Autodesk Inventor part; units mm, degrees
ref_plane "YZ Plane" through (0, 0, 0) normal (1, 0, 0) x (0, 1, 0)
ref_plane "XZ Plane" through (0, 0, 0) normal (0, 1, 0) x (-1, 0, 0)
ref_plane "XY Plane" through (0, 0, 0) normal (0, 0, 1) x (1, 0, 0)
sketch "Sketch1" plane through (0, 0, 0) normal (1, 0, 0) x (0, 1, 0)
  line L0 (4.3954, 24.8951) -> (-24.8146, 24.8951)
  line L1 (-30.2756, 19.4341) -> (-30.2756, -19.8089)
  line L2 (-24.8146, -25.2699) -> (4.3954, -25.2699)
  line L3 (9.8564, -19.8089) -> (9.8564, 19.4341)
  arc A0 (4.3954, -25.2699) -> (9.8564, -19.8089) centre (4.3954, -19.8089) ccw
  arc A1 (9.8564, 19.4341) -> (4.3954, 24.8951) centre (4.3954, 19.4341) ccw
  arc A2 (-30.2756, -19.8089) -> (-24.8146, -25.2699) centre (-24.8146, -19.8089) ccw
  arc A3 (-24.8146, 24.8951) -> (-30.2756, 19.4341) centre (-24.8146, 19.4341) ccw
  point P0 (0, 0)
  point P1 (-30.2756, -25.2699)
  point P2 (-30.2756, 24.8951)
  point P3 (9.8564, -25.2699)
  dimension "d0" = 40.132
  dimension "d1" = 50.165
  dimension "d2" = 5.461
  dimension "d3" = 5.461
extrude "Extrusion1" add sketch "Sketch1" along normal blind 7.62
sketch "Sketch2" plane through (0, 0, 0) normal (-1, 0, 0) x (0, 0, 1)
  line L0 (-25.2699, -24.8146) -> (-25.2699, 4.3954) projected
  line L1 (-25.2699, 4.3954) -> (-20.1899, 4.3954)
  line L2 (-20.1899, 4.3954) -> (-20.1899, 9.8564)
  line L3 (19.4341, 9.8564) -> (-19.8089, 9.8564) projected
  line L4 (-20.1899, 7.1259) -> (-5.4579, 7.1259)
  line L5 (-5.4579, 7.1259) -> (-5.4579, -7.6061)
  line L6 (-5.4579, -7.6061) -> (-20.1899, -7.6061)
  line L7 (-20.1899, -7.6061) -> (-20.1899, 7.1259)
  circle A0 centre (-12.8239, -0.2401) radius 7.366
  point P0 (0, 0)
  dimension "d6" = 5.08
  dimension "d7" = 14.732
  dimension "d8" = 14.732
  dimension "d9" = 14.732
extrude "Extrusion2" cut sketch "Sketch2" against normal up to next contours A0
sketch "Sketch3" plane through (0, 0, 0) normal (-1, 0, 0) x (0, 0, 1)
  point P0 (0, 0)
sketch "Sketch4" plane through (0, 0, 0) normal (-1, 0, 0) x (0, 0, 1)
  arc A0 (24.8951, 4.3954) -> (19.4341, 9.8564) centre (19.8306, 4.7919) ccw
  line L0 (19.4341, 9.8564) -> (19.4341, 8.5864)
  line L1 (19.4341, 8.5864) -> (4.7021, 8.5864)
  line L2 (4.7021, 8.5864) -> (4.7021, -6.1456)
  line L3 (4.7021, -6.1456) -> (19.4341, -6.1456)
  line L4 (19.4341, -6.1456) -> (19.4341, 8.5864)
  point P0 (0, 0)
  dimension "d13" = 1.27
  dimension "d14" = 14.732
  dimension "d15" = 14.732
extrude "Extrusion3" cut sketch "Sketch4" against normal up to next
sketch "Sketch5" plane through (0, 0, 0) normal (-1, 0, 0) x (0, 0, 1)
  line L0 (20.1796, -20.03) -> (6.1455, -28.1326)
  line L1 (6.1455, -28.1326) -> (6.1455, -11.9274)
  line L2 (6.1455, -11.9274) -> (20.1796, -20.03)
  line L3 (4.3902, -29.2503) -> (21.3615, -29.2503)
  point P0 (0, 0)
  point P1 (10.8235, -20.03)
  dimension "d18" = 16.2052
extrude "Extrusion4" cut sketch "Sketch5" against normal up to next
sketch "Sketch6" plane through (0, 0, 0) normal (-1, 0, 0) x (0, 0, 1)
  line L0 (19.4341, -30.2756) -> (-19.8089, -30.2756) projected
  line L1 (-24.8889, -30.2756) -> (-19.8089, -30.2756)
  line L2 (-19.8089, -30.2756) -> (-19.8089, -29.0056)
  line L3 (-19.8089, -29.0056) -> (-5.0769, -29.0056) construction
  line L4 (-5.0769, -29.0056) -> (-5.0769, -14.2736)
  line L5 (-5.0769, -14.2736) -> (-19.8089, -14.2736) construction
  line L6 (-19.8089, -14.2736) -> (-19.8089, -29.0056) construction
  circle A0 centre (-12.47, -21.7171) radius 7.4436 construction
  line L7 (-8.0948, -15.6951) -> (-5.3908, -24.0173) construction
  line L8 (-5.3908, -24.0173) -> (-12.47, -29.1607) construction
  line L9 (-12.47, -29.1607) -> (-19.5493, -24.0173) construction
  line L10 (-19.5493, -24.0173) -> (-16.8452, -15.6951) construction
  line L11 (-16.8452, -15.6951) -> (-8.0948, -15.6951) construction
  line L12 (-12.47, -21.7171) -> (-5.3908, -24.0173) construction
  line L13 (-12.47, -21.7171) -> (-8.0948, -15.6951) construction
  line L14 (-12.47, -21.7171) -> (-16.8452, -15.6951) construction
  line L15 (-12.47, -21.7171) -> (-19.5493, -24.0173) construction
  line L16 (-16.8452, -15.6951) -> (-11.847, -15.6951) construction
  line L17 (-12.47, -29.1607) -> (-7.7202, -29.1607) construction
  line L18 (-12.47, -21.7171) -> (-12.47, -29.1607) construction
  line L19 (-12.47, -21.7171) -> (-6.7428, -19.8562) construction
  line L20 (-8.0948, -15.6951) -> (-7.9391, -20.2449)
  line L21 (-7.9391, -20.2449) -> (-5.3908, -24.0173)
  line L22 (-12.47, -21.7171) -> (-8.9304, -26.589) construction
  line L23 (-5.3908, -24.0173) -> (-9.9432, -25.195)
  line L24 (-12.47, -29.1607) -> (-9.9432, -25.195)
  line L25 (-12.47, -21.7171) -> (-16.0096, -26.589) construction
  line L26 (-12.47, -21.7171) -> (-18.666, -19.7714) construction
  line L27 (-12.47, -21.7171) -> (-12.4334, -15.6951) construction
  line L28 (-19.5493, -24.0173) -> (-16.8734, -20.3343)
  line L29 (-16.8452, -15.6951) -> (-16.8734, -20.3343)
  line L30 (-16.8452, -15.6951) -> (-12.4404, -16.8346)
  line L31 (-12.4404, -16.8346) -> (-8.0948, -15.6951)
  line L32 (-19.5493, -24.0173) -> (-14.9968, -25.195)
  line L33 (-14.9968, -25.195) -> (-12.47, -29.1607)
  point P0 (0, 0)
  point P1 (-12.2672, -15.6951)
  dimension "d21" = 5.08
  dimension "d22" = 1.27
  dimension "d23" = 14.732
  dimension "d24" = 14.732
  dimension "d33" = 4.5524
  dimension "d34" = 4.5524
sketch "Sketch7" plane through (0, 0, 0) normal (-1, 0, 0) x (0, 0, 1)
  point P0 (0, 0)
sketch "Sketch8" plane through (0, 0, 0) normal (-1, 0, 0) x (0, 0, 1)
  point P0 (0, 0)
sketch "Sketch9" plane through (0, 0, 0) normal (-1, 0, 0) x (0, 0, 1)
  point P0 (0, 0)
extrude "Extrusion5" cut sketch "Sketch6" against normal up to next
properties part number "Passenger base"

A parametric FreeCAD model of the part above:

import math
import FreeCAD as App
import Part
import Sketcher

V = App.Vector
Q = App.Units.Quantity


def add_polygon(sketch, points):
    """Adds a closed chain of lines whose ends are joined by coincident constraints."""
    first, n = sketch.GeometryCount, len(points)
    for a, b in zip(points, points[1:] + points[:1]):
        sketch.addGeometry(Part.LineSegment(App.Vector(*a, 0), App.Vector(*b, 0)), False)
    for i in range(n):
        sketch.addConstraint(Sketcher.Constraint("Coincident", first + i, 2, first + (i + 1) % n, 1))

doc = App.newDocument("Part")
body = doc.addObject("PartDesign::Body", "Body")

# Sketch on YZ plane
sketch1 = body.newObject("Sketcher::SketchObject", "Sketch")
sketch1.AttachmentSupport = (doc.getObject("YZ_Plane"), [""])
sketch1.MapMode = "FlatFace"
sketch1.addGeometry([
    Part.ArcOfCircle(Part.Circle(V(4, 19, 0), V(0, 0, 1), 5), math.radians(0), math.radians(90)),  # 0
    Part.LineSegment(V(4, 25, 0), V(-25, 25, 0)),  # 1
    Part.ArcOfCircle(Part.Circle(V(-25, 19, 0), V(0, 0, 1), 5), math.radians(90), math.radians(180)),  # 2
    Part.LineSegment(V(-30, 19, 0), V(-30, -20, 0)),  # 3
    Part.ArcOfCircle(Part.Circle(V(-25, -20, 0), V(0, 0, 1), 5), math.radians(180), math.radians(270)),  # 4
    Part.LineSegment(V(-25, -25, 0), V(4, -25, 0)),  # 5
    Part.ArcOfCircle(Part.Circle(V(4, -20, 0), V(0, 0, 1), 5), math.radians(-90), math.radians(0)),  # 6
    Part.LineSegment(V(10, -20, 0), V(10, 19, 0)),  # 7
], False)
sketch1.addConstraint([
    Sketcher.Constraint("Tangent", 0, 2, 1, 1),
    Sketcher.Constraint("Tangent", 1, 2, 2, 1),
    Sketcher.Constraint("Tangent", 2, 2, 3, 1),
    Sketcher.Constraint("Tangent", 3, 2, 4, 1),
    Sketcher.Constraint("Tangent", 4, 2, 5, 1),
    Sketcher.Constraint("Tangent", 5, 2, 6, 1),
    Sketcher.Constraint("Tangent", 6, 2, 7, 1),
    Sketcher.Constraint("Tangent", 7, 2, 0, 1),
    Sketcher.Constraint("Horizontal", 1),
    Sketcher.Constraint("Vertical", 3),
    Sketcher.Constraint("Horizontal", 5),
    Sketcher.Constraint("Vertical", 7),
    Sketcher.Constraint("Equal", 0, 2),
    Sketcher.Constraint("Equal", 2, 4),
    Sketcher.Constraint("Equal", 4, 6),
    Sketcher.Constraint("Radius", 0, Q("0.215 in")),
    Sketcher.Constraint("DistanceX", 1, 2, 1, 1, Q("1.15 in")),
    Sketcher.Constraint("DistanceY", 3, 2, 3, 1, Q("1.545 in")),
    Sketcher.Constraint("DistanceX", -1, 1, 0, 3, 4.3954),
    Sketcher.Constraint("DistanceY", -1, 1, 0, 3, 19.434),
])
pad1 = body.newObject("PartDesign::Pad", "Pad")
pad1.Profile = sketch1
pad1.Length = Q("0.3 in")

# Sketch on YZ plane
sketch2 = body.newObject("Sketcher::SketchObject", "Sketch001")
sketch2.AttachmentSupport = (doc.getObject("YZ_Plane"), [""])
sketch2.MapMode = "FlatFace"
sketch2.addGeometry(Part.Circle(V(0, -13, 0), V(0, 0, 1), 7), False)
sketch2.addConstraint([
    Sketcher.Constraint("Diameter", 0, Q("0.58 in")),
    Sketcher.Constraint("DistanceX", 0, 3, -1, 1, 0.24),
    Sketcher.Constraint("DistanceY", 0, 3, -1, 1, 12.824),
])
pocket1 = body.newObject("PartDesign::Pocket", "Pocket")
pocket1.Profile = sketch2
pocket1.Type = "UpToFirst"
pocket1.Reversed = True

# Sketch on YZ plane
sketch3 = body.newObject("Sketcher::SketchObject", "Sketch002")
sketch3.AttachmentSupport = (doc.getObject("YZ_Plane"), [""])
sketch3.MapMode = "FlatFace"
add_polygon(sketch3, [(-6, 19), (9, 19), (9, 5), (-6, 5)])  # lines 0-3
sketch3.addConstraint([
    Sketcher.Constraint("Horizontal", 0),
    Sketcher.Constraint("Vertical", 1),
    Sketcher.Constraint("Horizontal", 2),
    Sketcher.Constraint("Vertical", 3),
    Sketcher.Constraint("Equal", 2, 1),
    Sketcher.Constraint("DistanceX", 0, 1, 0, 2, Q("0.58 in")),
    Sketcher.Constraint("DistanceX", -1, 1, 0, 2, 8.5864),
    Sketcher.Constraint("DistanceY", -1, 1, 0, 2, 19.434),
])
pocket2 = body.newObject("PartDesign::Pocket", "Pocket001")
pocket2.Profile = sketch3
pocket2.Type = "UpToFirst"
pocket2.Reversed = True

# Sketch on YZ plane
sketch4 = body.newObject("Sketcher::SketchObject", "Sketch003")
sketch4.AttachmentSupport = (doc.getObject("YZ_Plane"), [""])
sketch4.MapMode = "FlatFace"
add_polygon(sketch4, [(-28, 6), (-20, 20), (-12, 6)])  # lines 0-2
sketch4.addConstraint([
    Sketcher.Constraint("Horizontal", 2),
    Sketcher.Constraint("Equal", 0, 1),
    Sketcher.Constraint("DistanceX", 2, 2, 2, 1, Q("0.638 in")),
    Sketcher.Constraint("Distance", 0, Q("0.638 in")),
    Sketcher.Constraint("DistanceX", 0, 2, -1, 1, 20.03),
    Sketcher.Constraint("DistanceY", -1, 1, 0, 2, 20.1796),
])
pocket3 = body.newObject("PartDesign::Pocket", "Pocket002")
pocket3.Profile = sketch4
pocket3.Type = "UpToFirst"
pocket3.Reversed = True

# Sketch on YZ plane
sketch5 = body.newObject("Sketcher::SketchObject", "Sketch004")
sketch5.AttachmentSupport = (doc.getObject("YZ_Plane"), [""])
sketch5.MapMode = "FlatFace"
add_polygon(sketch5, [(-20.2, -7.9), (-15.7, -8.1), (-16.8, -12.4), (-15.7, -16.8), (-20.3, -16.9), (-24, -19.5), (-25.2, -15), (-29.2, -12.5), (-25.2, -9.9), (-24, -5.4)])  # lines 0-9
sketch5.addConstraint([
    Sketcher.Constraint("Parallel", 2, 5),
    Sketcher.Constraint("Vertical", 0, 2, 2, 2),
    Sketcher.Constraint("Vertical", 5, 2, 7, 2),
    Sketcher.Constraint("Vertical", 4, 2, 8, 2),
    Sketcher.Constraint("Equal", 0, 4),
    Sketcher.Constraint("Equal", 5, 6),
    Sketcher.Constraint("Equal", 6, 7),
    Sketcher.Constraint("Equal", 7, 8),
    Sketcher.Constraint("Equal", 4, 9),
    Sketcher.Constraint("Angle", 4, Q("-143.9996 deg")),
    Sketcher.Constraint("Distance", 0, 4.5525),
    Sketcher.Constraint("Angle", 0, Q("-1.96 deg")),
    Sketcher.Constraint("Angle", 9, Q("-34.0395 deg")),
    Sketcher.Constraint("DistanceY", 4, 2, 5, 2, 4.5525),
    Sketcher.Constraint("DistanceX", 5, 2, 2, 2, Q("0.374 in")),
    Sketcher.Constraint("DistanceY", 0, 2, -1, 1, Q("0.3187 in")),
    Sketcher.Constraint("DistanceY", 2, 2, -1, 1, Q("0.6632 in")),
    Sketcher.Constraint("DistanceY", 3, 2, -1, 1, Q("0.6643 in")),
    Sketcher.Constraint("Distance", 1, 4.4925),
    Sketcher.Constraint("DistanceX", 0, 2, -1, 1, 15.695),
])
pocket4 = body.newObject("PartDesign::Pocket", "Pocket003")
pocket4.Profile = sketch5
pocket4.Type = "UpToFirst"
pocket4.Reversed = True

doc.recompute()
